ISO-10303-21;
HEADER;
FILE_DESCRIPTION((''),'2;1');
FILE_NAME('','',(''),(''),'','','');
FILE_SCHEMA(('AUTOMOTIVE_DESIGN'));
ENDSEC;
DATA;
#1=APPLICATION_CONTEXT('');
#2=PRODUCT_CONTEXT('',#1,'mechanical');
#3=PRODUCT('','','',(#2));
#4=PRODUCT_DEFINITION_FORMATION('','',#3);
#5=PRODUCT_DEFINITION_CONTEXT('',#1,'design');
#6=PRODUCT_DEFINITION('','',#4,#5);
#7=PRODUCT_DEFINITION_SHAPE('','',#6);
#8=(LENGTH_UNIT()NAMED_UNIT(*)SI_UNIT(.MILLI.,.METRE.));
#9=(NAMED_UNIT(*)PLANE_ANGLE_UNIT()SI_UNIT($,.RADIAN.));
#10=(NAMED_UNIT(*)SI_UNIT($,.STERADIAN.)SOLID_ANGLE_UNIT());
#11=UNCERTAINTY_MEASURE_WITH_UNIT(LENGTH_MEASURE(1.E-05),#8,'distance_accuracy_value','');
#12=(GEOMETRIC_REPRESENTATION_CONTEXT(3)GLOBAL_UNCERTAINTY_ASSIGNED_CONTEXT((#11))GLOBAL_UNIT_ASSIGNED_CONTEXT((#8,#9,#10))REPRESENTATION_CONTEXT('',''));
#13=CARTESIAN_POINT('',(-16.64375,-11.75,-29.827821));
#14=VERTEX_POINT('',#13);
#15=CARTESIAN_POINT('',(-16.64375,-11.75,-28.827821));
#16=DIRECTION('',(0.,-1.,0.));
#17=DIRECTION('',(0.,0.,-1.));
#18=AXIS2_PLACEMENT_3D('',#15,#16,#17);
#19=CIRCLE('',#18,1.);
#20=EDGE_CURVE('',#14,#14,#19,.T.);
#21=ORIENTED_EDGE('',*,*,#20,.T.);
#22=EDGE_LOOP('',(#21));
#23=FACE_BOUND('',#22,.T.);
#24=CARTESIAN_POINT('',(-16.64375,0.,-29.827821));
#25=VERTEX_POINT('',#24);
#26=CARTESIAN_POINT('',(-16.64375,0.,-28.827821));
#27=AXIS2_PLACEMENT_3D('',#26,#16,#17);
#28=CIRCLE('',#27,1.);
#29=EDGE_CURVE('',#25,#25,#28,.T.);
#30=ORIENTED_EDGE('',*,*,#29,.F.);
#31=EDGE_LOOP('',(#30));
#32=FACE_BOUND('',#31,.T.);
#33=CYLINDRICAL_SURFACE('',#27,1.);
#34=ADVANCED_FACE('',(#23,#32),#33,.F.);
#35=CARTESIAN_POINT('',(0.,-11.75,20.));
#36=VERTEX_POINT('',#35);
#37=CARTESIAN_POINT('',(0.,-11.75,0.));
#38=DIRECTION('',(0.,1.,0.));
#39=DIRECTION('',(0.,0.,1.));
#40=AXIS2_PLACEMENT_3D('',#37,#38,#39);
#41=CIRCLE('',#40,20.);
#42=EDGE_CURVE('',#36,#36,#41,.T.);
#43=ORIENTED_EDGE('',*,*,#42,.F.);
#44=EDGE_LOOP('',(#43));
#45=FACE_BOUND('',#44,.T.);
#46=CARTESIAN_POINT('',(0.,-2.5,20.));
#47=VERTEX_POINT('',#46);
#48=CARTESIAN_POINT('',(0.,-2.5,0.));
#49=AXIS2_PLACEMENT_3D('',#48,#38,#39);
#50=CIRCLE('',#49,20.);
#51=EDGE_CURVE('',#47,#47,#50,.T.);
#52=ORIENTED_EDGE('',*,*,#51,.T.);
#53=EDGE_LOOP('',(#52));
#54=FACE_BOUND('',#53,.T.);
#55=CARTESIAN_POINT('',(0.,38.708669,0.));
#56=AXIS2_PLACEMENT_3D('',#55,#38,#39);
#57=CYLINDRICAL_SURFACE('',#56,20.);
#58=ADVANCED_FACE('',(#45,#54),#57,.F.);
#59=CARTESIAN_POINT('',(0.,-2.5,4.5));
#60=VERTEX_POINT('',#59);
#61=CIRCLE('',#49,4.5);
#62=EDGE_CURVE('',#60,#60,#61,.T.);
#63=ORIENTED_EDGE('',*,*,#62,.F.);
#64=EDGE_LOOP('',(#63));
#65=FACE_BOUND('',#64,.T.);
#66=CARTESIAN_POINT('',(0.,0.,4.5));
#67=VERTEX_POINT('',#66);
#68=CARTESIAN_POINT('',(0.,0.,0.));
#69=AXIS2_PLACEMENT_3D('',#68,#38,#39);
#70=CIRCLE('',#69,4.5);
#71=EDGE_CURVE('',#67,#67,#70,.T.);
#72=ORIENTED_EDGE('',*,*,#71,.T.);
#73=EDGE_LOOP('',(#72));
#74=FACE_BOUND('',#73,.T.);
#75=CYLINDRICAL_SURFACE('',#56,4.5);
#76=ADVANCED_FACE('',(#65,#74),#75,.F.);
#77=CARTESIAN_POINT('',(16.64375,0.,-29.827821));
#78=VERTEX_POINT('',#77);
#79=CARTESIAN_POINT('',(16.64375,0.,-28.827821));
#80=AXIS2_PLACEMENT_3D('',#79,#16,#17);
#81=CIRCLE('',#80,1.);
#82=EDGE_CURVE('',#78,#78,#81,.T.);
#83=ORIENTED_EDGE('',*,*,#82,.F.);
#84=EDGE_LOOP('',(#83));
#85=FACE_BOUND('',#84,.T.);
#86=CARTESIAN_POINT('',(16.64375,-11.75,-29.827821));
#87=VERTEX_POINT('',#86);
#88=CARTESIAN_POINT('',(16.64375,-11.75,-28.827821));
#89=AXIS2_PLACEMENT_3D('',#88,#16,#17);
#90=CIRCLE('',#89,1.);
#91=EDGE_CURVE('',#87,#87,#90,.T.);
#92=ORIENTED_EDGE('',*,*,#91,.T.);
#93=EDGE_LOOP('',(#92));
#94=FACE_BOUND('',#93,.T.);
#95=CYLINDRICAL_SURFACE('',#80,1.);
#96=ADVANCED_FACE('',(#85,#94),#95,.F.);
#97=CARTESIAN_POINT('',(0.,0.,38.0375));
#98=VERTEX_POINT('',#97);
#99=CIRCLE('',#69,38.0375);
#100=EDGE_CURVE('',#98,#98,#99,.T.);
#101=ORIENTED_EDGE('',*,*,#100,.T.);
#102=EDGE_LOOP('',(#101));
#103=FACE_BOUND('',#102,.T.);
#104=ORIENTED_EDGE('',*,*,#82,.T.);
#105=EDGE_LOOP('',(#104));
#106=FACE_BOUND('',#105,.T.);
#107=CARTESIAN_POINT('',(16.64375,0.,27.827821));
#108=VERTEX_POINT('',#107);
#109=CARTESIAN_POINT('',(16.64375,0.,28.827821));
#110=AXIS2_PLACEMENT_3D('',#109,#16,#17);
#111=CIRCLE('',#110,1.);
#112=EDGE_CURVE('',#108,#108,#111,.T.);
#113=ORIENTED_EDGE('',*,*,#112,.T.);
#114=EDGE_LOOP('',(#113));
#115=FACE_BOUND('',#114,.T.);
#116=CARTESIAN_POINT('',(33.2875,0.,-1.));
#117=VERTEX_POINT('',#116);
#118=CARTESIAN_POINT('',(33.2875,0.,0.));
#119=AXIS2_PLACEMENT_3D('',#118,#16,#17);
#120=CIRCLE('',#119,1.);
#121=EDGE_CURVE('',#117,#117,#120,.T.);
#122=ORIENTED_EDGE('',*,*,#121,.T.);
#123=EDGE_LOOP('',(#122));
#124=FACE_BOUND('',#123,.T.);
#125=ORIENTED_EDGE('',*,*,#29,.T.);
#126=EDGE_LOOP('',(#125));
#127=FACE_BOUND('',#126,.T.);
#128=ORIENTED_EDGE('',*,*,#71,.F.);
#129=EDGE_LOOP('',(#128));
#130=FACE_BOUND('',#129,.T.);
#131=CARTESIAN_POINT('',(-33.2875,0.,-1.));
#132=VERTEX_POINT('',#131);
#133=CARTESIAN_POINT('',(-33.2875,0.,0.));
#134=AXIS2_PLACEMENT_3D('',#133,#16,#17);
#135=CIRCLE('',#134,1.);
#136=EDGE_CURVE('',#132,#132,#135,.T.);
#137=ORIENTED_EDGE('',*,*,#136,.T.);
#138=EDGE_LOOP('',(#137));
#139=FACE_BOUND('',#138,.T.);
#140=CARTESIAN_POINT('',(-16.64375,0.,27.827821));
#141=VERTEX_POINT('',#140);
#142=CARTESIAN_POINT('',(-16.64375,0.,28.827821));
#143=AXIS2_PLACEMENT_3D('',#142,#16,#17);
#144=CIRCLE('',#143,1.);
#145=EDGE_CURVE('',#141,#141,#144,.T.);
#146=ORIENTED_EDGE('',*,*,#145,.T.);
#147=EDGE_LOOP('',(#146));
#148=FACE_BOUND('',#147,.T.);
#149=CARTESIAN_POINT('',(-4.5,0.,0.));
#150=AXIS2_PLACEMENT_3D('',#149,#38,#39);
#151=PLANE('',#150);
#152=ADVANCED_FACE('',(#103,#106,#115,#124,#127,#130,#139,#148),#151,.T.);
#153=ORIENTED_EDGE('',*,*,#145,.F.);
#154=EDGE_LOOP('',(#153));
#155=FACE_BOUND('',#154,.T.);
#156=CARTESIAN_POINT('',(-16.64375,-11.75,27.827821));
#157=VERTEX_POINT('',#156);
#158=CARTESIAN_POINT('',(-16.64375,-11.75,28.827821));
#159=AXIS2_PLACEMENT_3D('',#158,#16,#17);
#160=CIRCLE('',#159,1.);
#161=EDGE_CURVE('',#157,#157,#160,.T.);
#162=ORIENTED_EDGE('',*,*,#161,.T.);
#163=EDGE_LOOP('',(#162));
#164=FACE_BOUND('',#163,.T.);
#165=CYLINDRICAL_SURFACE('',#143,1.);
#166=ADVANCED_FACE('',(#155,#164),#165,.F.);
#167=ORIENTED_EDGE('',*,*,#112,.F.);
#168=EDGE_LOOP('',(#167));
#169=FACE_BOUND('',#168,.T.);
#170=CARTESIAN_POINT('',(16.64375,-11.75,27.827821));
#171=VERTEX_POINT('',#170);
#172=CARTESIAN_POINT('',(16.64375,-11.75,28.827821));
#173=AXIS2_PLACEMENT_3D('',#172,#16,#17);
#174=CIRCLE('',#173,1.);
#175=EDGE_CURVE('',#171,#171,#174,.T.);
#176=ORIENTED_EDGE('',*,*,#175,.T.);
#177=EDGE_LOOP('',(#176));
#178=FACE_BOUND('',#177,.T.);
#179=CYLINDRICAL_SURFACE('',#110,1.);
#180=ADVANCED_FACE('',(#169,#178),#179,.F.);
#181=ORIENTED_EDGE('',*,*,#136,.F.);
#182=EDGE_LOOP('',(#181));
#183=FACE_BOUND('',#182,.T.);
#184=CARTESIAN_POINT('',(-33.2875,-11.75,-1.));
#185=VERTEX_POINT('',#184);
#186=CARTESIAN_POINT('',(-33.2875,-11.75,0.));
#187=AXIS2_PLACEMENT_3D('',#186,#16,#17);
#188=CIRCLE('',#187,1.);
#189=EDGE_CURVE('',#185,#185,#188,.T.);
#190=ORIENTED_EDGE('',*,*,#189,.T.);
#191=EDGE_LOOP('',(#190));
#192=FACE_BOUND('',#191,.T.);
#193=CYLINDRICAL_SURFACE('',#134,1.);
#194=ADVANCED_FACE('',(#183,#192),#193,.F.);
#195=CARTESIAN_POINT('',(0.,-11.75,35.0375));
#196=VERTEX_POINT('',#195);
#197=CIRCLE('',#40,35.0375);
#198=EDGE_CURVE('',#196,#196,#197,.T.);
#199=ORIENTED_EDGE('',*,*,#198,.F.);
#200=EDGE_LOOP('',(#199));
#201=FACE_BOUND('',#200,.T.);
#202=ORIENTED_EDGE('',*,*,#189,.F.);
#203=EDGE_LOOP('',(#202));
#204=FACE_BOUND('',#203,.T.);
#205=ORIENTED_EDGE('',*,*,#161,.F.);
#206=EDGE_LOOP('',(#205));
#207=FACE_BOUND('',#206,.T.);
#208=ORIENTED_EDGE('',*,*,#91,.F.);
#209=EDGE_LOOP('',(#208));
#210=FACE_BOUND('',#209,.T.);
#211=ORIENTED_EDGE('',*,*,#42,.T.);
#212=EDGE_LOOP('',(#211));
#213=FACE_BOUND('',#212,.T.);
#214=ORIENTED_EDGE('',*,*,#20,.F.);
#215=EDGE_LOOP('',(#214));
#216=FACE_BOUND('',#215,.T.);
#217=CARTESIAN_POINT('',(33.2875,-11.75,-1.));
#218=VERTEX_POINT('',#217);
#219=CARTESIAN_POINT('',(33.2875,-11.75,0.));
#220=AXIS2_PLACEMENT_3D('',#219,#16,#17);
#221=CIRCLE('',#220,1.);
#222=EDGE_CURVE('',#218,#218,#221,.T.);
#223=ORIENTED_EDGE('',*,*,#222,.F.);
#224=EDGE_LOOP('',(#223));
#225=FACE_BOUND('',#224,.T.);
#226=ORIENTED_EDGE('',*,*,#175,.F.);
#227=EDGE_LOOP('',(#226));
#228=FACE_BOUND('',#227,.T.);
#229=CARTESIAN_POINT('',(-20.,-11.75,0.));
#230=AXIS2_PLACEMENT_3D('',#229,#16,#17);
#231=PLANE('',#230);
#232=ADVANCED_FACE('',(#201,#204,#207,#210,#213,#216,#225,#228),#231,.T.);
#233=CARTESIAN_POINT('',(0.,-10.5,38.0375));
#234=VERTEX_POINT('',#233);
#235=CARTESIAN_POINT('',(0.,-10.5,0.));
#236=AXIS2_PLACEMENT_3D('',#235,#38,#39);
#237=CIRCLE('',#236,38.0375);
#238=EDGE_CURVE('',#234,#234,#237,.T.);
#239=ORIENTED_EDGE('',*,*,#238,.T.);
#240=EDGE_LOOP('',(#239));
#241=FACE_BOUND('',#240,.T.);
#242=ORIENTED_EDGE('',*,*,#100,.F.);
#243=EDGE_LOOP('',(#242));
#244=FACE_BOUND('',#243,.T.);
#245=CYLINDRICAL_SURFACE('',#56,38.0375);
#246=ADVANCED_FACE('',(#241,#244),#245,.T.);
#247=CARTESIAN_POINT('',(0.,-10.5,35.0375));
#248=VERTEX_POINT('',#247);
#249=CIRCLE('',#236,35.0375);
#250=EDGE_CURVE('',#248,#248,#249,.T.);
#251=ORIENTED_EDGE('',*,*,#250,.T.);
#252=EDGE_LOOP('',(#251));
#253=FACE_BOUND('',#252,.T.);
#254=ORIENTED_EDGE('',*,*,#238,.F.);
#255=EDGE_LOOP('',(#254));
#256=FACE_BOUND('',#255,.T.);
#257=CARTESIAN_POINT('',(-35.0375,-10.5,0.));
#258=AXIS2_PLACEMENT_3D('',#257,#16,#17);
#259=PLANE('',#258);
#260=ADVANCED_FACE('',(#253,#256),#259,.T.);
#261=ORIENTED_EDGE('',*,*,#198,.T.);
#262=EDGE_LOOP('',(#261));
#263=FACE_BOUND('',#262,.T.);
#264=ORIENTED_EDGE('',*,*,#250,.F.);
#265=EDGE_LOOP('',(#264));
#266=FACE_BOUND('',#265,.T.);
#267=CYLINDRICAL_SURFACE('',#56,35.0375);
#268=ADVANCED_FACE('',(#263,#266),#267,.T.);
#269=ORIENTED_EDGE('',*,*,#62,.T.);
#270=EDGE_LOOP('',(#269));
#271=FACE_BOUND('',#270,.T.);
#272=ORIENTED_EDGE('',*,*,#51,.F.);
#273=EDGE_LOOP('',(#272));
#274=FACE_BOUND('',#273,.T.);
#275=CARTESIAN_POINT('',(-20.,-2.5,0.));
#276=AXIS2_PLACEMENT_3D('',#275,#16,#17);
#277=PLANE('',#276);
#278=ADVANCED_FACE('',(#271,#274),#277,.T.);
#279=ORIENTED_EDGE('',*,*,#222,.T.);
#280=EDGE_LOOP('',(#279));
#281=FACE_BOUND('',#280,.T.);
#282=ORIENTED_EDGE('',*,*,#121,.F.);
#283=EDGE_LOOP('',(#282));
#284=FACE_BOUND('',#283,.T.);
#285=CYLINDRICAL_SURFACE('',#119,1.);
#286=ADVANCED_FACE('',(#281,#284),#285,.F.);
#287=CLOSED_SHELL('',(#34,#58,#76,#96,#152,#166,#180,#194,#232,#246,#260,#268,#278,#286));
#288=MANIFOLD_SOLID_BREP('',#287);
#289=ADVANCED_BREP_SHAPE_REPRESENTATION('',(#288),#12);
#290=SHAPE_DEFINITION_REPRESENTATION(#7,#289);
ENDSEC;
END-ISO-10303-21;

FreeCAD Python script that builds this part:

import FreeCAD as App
import Part
import Sketcher

V = App.Vector
Q = App.Units.Quantity


def add_polygon(sketch, points):
    """Adds a closed chain of lines whose ends are joined by coincident constraints."""
    first, n = sketch.GeometryCount, len(points)
    for a, b in zip(points, points[1:] + points[:1]):
        sketch.addGeometry(Part.LineSegment(App.Vector(*a, 0), App.Vector(*b, 0)), False)
    for i in range(n):
        sketch.addConstraint(Sketcher.Constraint("Coincident", first + i, 2, first + (i + 1) % n, 1))

doc = App.newDocument("Part")
body = doc.addObject("PartDesign::Body", "Body")

# Sketch on XY plane
sketch1 = doc.addObject("Sketcher::SketchObject", "Sketch")
body.addObject(sketch1)
sketch1.AttachmentSupport = (doc.XY_Plane, [""])
sketch1.MapMode = "FlatFace"
add_polygon(sketch1, [(-4.5, 0), (-38, 0), (-38, -10.5), (-35, -10.5), (-35, -11.8), (-20, -11.8), (-20, -2.5), (-4.5, -2.5)])  # lines 0-7
sketch1.addConstraint(Sketcher.Constraint("Horizontal", 0))
sketch1.addConstraint(Sketcher.Constraint("Vertical", 1))
sketch1.addConstraint(Sketcher.Constraint("Horizontal", 2))
sketch1.addConstraint(Sketcher.Constraint("Vertical", 3))
sketch1.addConstraint(Sketcher.Constraint("Horizontal", 4))
sketch1.addConstraint(Sketcher.Constraint("Vertical", 5))
sketch1.addConstraint(Sketcher.Constraint("Horizontal", 6))
sketch1.addConstraint(Sketcher.Constraint("Vertical", 7))
sketch1.addConstraint(Sketcher.Constraint("PointOnObject", 0, 2, -1))
sketch1.addConstraint(Sketcher.Constraint("DistanceX", 2, 1, 2, 2, Q("3 mm")))
sketch1.addConstraint(Sketcher.Constraint("DistanceX", 6, 1, 6, 2, Q("15.5 mm")))
sketch1.addConstraint(Sketcher.Constraint("DistanceY", 1, 2, 1, 1, Q("10.5 mm")))
sketch1.addConstraint(Sketcher.Constraint("DistanceY", 7, 1, 7, 2, Q("2.5 mm")))
sketch1.addConstraint(Sketcher.Constraint("DistanceX", 4, 2, -1, 1, Q("20 mm")))
sketch1.addConstraint(Sketcher.Constraint("DistanceY", 3, 2, 3, 1, Q("1.25 mm")))
sketch1.addConstraint(Sketcher.Constraint("DistanceX", 0, 2, 0, 1, Q("33.5375 mm")))
revolution = doc.addObject("PartDesign::Revolution", "Revolution")
body.addObject(revolution)
revolution.Profile = sketch1
revolution.ReferenceAxis = (sketch1, ["V_Axis"])
revolution.Angle = 360

# Sketch on XZ plane
sketch2 = doc.addObject("Sketcher::SketchObject", "Sketch001")
body.addObject(sketch2)
sketch2.AttachmentSupport = (doc.XZ_Plane, [""])
sketch2.MapMode = "FlatFace"
sketch2.AttachmentOffset = App.Placement(V(0, 0, 11.75), App.Rotation())
sketch2.addGeometry(Part.Circle(V(-33.3, 0, 0), V(0, 0, 1), 1), False)
sketch2.addGeometry(Part.Circle(V(-16.6, 28.8, 0), V(0, 0, 1), 1), False)
sketch2.addGeometry(Part.Circle(V(16.6, 28.8, 0), V(0, 0, 1), 1), False)
sketch2.addGeometry(Part.Circle(V(33.3, 0, 0), V(0, 0, 1), 1), False)
sketch2.addGeometry(Part.Circle(V(16.6, -28.8, 0), V(0, 0, 1), 1), False)
sketch2.addGeometry(Part.Circle(V(-16.6, -28.8, 0), V(0, 0, 1), 1), False)
sketch2.addConstraint(Sketcher.Constraint("Equal", 0, 1))
sketch2.addConstraint(Sketcher.Constraint("Equal", 1, 2))
sketch2.addConstraint(Sketcher.Constraint("Equal", 2, 3))
sketch2.addConstraint(Sketcher.Constraint("Equal", 3, 4))
sketch2.addConstraint(Sketcher.Constraint("Equal", 4, 5))
sketch2.addConstraint(Sketcher.Constraint("Symmetric", 0, 3, 3, 3, -1, 1))
sketch2.addConstraint(Sketcher.Constraint("Symmetric", 1, 3, 4, 3, -1, 1))
sketch2.addConstraint(Sketcher.Constraint("Symmetric", 2, 3, 5, 3, -1, 1))
sketch2.addConstraint(Sketcher.Constraint("Symmetric", 1, 3, 2, 3, -2))
sketch2.addConstraint(Sketcher.Constraint("PointOnObject", 0, 3, -1))
sketch2.addConstraint(Sketcher.Constraint("Diameter", 0, Q("2 mm")))
sketch2.addConstraint(Sketcher.Constraint("DistanceX", 0, 3, 3, 3, Q("66.575 mm")))
sketch2.addConstraint(Sketcher.Constraint("DistanceX", 1, 3, 2, 3, Q("33.2875 mm")))
sketch2.addConstraint(Sketcher.Constraint("DistanceY", -1, 1, 1, 3, Q("28.827821 mm")))
pocket1 = doc.addObject("PartDesign::Pocket", "Pocket")
body.addObject(pocket1)
pocket1.Profile = sketch2
pocket1.Type = "ThroughAll"

doc.recompute()
